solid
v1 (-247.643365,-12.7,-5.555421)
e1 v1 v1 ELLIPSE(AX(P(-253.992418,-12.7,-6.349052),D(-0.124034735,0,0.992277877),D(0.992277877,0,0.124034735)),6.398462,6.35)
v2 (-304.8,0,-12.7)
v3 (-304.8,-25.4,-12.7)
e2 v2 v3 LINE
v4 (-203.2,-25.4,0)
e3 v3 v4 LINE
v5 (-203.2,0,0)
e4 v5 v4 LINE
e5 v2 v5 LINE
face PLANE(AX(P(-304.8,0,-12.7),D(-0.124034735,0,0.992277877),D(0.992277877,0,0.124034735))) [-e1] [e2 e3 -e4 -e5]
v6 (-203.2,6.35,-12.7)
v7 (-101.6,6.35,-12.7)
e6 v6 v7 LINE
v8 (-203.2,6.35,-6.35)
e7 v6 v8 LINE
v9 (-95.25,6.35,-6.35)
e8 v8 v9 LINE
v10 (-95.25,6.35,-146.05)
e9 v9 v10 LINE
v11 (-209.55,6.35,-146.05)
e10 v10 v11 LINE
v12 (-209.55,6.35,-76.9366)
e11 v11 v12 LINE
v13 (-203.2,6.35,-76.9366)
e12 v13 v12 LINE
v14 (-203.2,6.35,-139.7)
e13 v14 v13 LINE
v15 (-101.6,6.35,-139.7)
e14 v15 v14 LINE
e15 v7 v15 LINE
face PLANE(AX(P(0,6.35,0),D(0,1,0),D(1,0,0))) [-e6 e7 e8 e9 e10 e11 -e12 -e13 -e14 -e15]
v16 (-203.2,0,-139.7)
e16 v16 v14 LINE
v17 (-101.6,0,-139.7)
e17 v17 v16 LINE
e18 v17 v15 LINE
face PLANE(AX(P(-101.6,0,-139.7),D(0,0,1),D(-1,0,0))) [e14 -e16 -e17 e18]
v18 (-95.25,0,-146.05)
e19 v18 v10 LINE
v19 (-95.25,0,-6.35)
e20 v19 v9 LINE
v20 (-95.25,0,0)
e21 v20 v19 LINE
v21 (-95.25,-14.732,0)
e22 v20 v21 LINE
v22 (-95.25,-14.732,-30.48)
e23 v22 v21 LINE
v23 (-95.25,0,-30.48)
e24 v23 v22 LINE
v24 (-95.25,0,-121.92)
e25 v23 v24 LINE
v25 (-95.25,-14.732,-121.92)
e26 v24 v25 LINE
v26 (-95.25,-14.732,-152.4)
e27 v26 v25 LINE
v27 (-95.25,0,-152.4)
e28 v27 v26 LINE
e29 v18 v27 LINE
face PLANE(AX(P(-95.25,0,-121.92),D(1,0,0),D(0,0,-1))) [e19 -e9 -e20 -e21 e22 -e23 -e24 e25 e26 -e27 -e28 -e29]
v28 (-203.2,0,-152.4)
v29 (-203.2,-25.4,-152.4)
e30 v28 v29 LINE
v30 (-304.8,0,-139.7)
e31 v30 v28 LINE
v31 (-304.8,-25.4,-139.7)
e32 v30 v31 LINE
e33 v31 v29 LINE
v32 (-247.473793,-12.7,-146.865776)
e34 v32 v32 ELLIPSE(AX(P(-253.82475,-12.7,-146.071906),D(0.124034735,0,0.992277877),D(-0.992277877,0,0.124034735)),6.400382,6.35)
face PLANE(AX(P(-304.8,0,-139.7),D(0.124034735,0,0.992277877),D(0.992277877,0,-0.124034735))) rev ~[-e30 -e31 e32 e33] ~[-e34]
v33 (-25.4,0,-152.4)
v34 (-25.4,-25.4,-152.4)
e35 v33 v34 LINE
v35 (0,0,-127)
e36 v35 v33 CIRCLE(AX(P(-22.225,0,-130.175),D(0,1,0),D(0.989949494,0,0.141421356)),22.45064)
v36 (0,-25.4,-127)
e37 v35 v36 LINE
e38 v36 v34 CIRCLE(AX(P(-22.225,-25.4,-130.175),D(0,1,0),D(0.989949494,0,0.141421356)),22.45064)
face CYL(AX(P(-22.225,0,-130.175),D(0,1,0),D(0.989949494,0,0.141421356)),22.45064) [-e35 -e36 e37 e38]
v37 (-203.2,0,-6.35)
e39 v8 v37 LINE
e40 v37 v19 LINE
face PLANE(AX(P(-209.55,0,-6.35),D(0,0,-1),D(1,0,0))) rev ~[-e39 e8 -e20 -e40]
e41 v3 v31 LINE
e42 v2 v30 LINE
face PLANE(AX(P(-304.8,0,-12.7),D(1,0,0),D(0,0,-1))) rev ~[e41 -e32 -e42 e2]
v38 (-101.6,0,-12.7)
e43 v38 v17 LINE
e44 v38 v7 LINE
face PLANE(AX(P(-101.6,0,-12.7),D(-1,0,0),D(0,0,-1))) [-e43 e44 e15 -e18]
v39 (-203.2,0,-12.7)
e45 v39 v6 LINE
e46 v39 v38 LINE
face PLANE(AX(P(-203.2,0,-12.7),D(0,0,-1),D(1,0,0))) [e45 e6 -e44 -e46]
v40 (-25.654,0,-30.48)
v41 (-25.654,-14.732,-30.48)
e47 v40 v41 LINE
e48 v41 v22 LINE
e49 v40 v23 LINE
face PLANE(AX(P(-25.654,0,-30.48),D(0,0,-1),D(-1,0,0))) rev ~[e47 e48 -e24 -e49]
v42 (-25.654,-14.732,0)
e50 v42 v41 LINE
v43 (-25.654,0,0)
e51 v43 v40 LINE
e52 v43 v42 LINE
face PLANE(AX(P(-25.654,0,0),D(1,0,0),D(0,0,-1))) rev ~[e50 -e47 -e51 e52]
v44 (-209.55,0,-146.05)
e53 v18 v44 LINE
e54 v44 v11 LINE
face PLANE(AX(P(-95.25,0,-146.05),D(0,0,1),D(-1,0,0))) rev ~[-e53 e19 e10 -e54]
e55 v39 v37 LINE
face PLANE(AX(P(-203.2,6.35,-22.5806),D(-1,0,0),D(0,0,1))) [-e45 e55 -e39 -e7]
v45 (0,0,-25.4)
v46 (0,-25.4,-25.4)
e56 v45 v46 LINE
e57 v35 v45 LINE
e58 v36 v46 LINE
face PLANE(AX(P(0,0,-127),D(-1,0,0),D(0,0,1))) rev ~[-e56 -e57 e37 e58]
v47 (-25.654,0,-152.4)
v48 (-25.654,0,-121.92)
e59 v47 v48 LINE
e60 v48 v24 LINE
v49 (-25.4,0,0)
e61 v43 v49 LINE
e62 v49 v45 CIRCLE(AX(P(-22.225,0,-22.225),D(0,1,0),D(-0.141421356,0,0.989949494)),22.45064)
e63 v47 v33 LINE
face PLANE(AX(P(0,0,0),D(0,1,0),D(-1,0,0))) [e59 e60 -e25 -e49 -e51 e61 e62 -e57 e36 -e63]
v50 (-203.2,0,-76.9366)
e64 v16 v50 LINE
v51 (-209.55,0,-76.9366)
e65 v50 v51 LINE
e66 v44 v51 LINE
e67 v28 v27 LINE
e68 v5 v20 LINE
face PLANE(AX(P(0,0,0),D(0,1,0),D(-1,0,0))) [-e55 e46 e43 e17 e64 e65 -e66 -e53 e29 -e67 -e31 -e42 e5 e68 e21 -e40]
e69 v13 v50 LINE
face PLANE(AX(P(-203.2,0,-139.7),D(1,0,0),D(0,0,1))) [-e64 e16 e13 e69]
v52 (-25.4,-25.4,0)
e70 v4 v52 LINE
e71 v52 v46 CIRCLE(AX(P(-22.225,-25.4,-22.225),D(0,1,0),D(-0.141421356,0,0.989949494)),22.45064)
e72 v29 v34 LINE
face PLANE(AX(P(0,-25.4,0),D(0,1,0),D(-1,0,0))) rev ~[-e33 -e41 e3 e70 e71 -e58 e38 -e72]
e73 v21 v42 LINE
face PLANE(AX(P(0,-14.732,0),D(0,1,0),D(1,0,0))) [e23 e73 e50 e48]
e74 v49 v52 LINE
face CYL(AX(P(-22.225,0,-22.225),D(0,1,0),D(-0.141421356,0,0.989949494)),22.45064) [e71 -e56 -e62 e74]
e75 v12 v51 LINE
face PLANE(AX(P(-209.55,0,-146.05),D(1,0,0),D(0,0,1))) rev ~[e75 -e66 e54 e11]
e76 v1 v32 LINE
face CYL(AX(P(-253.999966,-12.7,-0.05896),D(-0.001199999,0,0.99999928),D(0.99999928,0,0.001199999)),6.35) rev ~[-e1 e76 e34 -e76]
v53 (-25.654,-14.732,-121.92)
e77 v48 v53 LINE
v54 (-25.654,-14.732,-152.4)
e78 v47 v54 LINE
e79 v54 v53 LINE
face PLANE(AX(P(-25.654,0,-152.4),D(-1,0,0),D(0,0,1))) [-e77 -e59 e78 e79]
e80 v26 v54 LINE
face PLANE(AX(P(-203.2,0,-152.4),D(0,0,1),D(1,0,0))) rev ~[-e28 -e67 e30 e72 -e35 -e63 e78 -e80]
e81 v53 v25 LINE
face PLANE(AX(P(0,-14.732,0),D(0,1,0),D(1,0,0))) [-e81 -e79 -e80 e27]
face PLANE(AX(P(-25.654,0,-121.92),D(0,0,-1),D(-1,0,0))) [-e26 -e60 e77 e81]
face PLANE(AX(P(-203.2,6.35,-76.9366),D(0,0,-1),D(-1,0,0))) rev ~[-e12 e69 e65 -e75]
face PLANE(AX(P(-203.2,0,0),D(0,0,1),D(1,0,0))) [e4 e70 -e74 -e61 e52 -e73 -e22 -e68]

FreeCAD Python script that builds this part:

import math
import FreeCAD as App
import Part
import Sketcher
from FreeCAD import Vector
Q = App.Units.Quantity

doc = App.newDocument("Part")
body = doc.addObject("PartDesign::Body", "Body")

sketch1 = body.newObject("Sketcher::SketchObject", "Sketch")
sketch1.AttachmentSupport = (doc.getObject("XZ_Plane"), [""])
sketch1.MapMode = "FlatFace"
sketch1.addGeometry(Part.LineSegment(Vector(-203, -152, 0), Vector(-305, -140, 0)), False)
sketch1.addGeometry(Part.LineSegment(Vector(-305, -140, 0), Vector(-305, -13, 0)), False)
sketch1.addGeometry(Part.LineSegment(Vector(-305, -13, 0), Vector(-203, 0, 0)), False)
sketch1.addGeometry(Part.LineSegment(Vector(-203, 0, 0), Vector(-25, 0, 0)), False)
sketch1.addGeometry(Part.ArcOfCircle(Part.Circle(Vector(-22, -22, 0), Vector(0, 0, 1), 22), math.radians(-8), math.radians(98)), False)
sketch1.addGeometry(Part.LineSegment(Vector(0, -25, 0), Vector(0, -127, 0)), False)
sketch1.addGeometry(Part.ArcOfCircle(Part.Circle(Vector(-22, -130, 0), Vector(0, 0, 1), 22), math.radians(-98), math.radians(8)), False)
sketch1.addGeometry(Part.LineSegment(Vector(-25, -152, 0), Vector(-203, -152, 0)), False)
sketch1.addConstraint(Sketcher.Constraint("Coincident", 0, 2, 1, 1))
sketch1.addConstraint(Sketcher.Constraint("Coincident", 1, 2, 2, 1))
sketch1.addConstraint(Sketcher.Constraint("Coincident", 2, 2, 3, 1))
sketch1.addConstraint(Sketcher.Constraint("Coincident", 3, 2, 4, 2))
sketch1.addConstraint(Sketcher.Constraint("Coincident", 4, 1, 5, 1))
sketch1.addConstraint(Sketcher.Constraint("Coincident", 5, 2, 6, 2))
sketch1.addConstraint(Sketcher.Constraint("Coincident", 6, 1, 7, 1))
sketch1.addConstraint(Sketcher.Constraint("Coincident", 7, 2, 0, 1))
sketch1.addConstraint(Sketcher.Constraint("Vertical", 1))
sketch1.addConstraint(Sketcher.Constraint("Horizontal", 3))
sketch1.addConstraint(Sketcher.Constraint("Vertical", 5))
sketch1.addConstraint(Sketcher.Constraint("Horizontal", 7))
sketch1.addConstraint(Sketcher.Constraint("Equal", 4, 6))
sketch1.addConstraint(Sketcher.Constraint("PointOnObject", 2, 2, -1))
sketch1.addConstraint(Sketcher.Constraint("PointOnObject", 4, 1, -2))
sketch1.addConstraint(Sketcher.Constraint("Vertical", 4, 3, 6, 3))
sketch1.addConstraint(Sketcher.Constraint("Vertical", 3, 2, 6, 1))
sketch1.addConstraint(Sketcher.Constraint("Vertical", 2, 2, 7, 2))
sketch1.addConstraint(Sketcher.Constraint("Equal", 0, 2))
sketch1.addConstraint(Sketcher.Constraint("DistanceY", 1, 1, 1, 2, Q("5 in")))
sketch1.addConstraint(Sketcher.Constraint("DistanceY", 5, 2, 5, 1, Q("4 in")))
sketch1.addConstraint(Sketcher.Constraint("DistanceY", 5, 2, -1, 1, Q("5 in")))
sketch1.addConstraint(Sketcher.Constraint("DistanceX", 1, 2, 2, 2, Q("4 in")))
sketch1.addConstraint(Sketcher.Constraint("DistanceX", 3, 1, 3, 2, Q("7 in")))
sketch1.addConstraint(Sketcher.Constraint("DistanceX", 0, 2, -1, 1, Q("12 in")))
sketch1.addConstraint(Sketcher.Constraint("Radius", 4, Q("22.4506 mm")))
pad1 = body.newObject("PartDesign::Pad", "Pad")
pad1.Profile = sketch1
pad1.Length = Q("1 in")

sketch2 = body.newObject("Sketcher::SketchObject", "Sketch001")
sketch2.AttachmentSupport = (doc.getObject("XZ_Plane"), [""])
sketch2.MapMode = "FlatFace"
sketch2.addGeometry(Part.LineSegment(Vector(-210, -146, 0), Vector(-210, -6, 0)), False)
sketch2.addGeometry(Part.LineSegment(Vector(-210, -6, 0), Vector(-95, -6, 0)), False)
sketch2.addGeometry(Part.LineSegment(Vector(-95, -6, 0), Vector(-95, -146, 0)), False)
sketch2.addGeometry(Part.LineSegment(Vector(-95, -146, 0), Vector(-210, -146, 0)), False)
sketch2.addGeometry(Part.LineSegment(Vector(-102, -13, 0), Vector(-203, -13, 0)), False)
sketch2.addGeometry(Part.LineSegment(Vector(-203, -13, 0), Vector(-203, -140, 0)), False)
sketch2.addGeometry(Part.LineSegment(Vector(-203, -140, 0), Vector(-102, -140, 0)), False)
sketch2.addGeometry(Part.LineSegment(Vector(-102, -140, 0), Vector(-102, -13, 0)), False)
sketch2.addConstraint(Sketcher.Constraint("Coincident", 0, 2, 1, 1))
sketch2.addConstraint(Sketcher.Constraint("Coincident", 1, 2, 2, 1))
sketch2.addConstraint(Sketcher.Constraint("Coincident", 2, 2, 3, 1))
sketch2.addConstraint(Sketcher.Constraint("Coincident", 3, 2, 0, 1))
sketch2.addConstraint(Sketcher.Constraint("Coincident", 4, 2, 5, 1))
sketch2.addConstraint(Sketcher.Constraint("Coincident", 5, 2, 6, 1))
sketch2.addConstraint(Sketcher.Constraint("Coincident", 6, 2, 7, 1))
sketch2.addConstraint(Sketcher.Constraint("Coincident", 7, 2, 4, 1))
sketch2.addConstraint(Sketcher.Constraint("Vertical", 0))
sketch2.addConstraint(Sketcher.Constraint("Horizontal", 1))
sketch2.addConstraint(Sketcher.Constraint("Vertical", 2))
sketch2.addConstraint(Sketcher.Constraint("Horizontal", 3))
sketch2.addConstraint(Sketcher.Constraint("Horizontal", 4))
sketch2.addConstraint(Sketcher.Constraint("Vertical", 5))
sketch2.addConstraint(Sketcher.Constraint("Horizontal", 6))
sketch2.addConstraint(Sketcher.Constraint("Vertical", 7))
sketch2.addConstraint(Sketcher.Constraint("DistanceX", 4, 2, 4, 1, Q("4 in")))
sketch2.addConstraint(Sketcher.Constraint("DistanceY", 5, 2, 5, 1, Q("5 in")))
sketch2.addConstraint(Sketcher.Constraint("DistanceX", 1, 1, 1, 2, Q("4.5 in")))
sketch2.addConstraint(Sketcher.Constraint("DistanceY", 0, 1, 0, 2, Q("5.5 in")))
sketch2.addConstraint(Sketcher.Constraint("DistanceX", 6, 2, -1, 1, Q("4 in")))
sketch2.addConstraint(Sketcher.Constraint("DistanceY", 4, 2, -1, 1, Q("0.5 in")))
sketch2.addConstraint(Sketcher.Constraint("DistanceY", 0, 2, -1, 1, Q("0.25 in")))
sketch2.addConstraint(Sketcher.Constraint("DistanceX", 0, 2, 4, 2, Q("0.25 in")))
pad2 = body.newObject("PartDesign::Pad", "Pad001")
pad2.Profile = sketch2
pad2.Length = Q("0.25 in")
pad2.Reversed = True

sketch3 = body.newObject("Sketcher::SketchObject", "Sketch002")
sketch3.Placement = App.Placement(Vector(-203.2, 0, 0), App.Rotation(Vector(0.99999928, 0, 0.001199999), Vector(0, 1, 0), Vector(-0.001199999, 0, 0.99999928), "ZXY"))
sketch3.addGeometry(Part.Circle(Vector(-51, -13, 0), Vector(0, 0, 1), 6), False)
sketch3.addConstraint(Sketcher.Constraint("Diameter", 0, Q("0.5 in")))
sketch3.addConstraint(Sketcher.Constraint("DistanceX", 0, 3, -1, 1, Q("2 in")))
sketch3.addConstraint(Sketcher.Constraint("DistanceY", 0, 3, -1, 1, Q("0.5 in")))
pocket1 = body.newObject("PartDesign::Pocket", "Pocket")
pocket1.Profile = sketch3
pocket1.Length = Q("6 in")

sketch4 = body.newObject("Sketcher::SketchObject", "Sketch003")
sketch4.AttachmentSupport = (doc.getObject("XZ_Plane"), [""])
sketch4.MapMode = "FlatFace"
sketch4.addGeometry(Part.LineSegment(Vector(-95, -30, 0), Vector(-95, 0, 0)), False)
sketch4.addGeometry(Part.LineSegment(Vector(-95, 0, 0), Vector(-26, 0, 0)), False)
sketch4.addGeometry(Part.LineSegment(Vector(-26, 0, 0), Vector(-26, -30, 0)), False)
sketch4.addGeometry(Part.LineSegment(Vector(-26, -30, 0), Vector(-95, -30, 0)), False)
sketch4.addGeometry(Part.LineSegment(Vector(-95, -152, 0), Vector(-95, -122, 0)), False)
sketch4.addGeometry(Part.LineSegment(Vector(-95, -122, 0), Vector(-26, -122, 0)), False)
sketch4.addGeometry(Part.LineSegment(Vector(-26, -122, 0), Vector(-26, -152, 0)), False)
sketch4.addGeometry(Part.LineSegment(Vector(-26, -152, 0), Vector(-95, -152, 0)), False)
sketch4.addConstraint(Sketcher.Constraint("Coincident", 0, 2, 1, 1))
sketch4.addConstraint(Sketcher.Constraint("Coincident", 1, 2, 2, 1))
sketch4.addConstraint(Sketcher.Constraint("Coincident", 2, 2, 3, 1))
sketch4.addConstraint(Sketcher.Constraint("Coincident", 3, 2, 0, 1))
sketch4.addConstraint(Sketcher.Constraint("Coincident", 4, 2, 5, 1))
sketch4.addConstraint(Sketcher.Constraint("Coincident", 5, 2, 6, 1))
sketch4.addConstraint(Sketcher.Constraint("Coincident", 6, 2, 7, 1))
sketch4.addConstraint(Sketcher.Constraint("Coincident", 7, 2, 4, 1))
sketch4.addConstraint(Sketcher.Constraint("Vertical", 0))
sketch4.addConstraint(Sketcher.Constraint("Horizontal", 1))
sketch4.addConstraint(Sketcher.Constraint("Vertical", 2))
sketch4.addConstraint(Sketcher.Constraint("Horizontal", 3))
sketch4.addConstraint(Sketcher.Constraint("Vertical", 4))
sketch4.addConstraint(Sketcher.Constraint("Horizontal", 5))
sketch4.addConstraint(Sketcher.Constraint("Vertical", 6))
sketch4.addConstraint(Sketcher.Constraint("Horizontal", 7))
sketch4.addConstraint(Sketcher.Constraint("PointOnObject", 0, 2, -1))
sketch4.addConstraint(Sketcher.Constraint("Vertical", 3, 2, 4, 2))
sketch4.addConstraint(Sketcher.Constraint("Vertical", 2, 2, 5, 2))
sketch4.addConstraint(Sketcher.Constraint("Equal", 2, 4))
sketch4.addConstraint(Sketcher.Constraint("DistanceY", 0, 1, 0, 2, Q("1.2 in")))
sketch4.addConstraint(Sketcher.Constraint("DistanceX", 1, 1, 1, 2, Q("2.74 in")))
sketch4.addConstraint(Sketcher.Constraint("DistanceY", 6, 2, -1, 1, Q("6 in")))
sketch4.addConstraint(Sketcher.Constraint("DistanceX", 0, 2, -1, 1, Q("3.75 in")))
pocket2 = body.newObject("PartDesign::Pocket", "Pocket001")
pocket2.Profile = sketch4
pocket2.Length = Q("0.58 in")
pocket2.Reversed = True

sketch5 = body.newObject("Sketcher::SketchObject", "Sketch004")
sketch5.AttachmentSupport = (doc.getObject("XZ_Plane"), [""])
sketch5.MapMode = "FlatFace"
sketch5.AttachmentOffset = App.Placement(Vector(0, 0, -0.25 * 25.4), App.Rotation())
sketch5.addGeometry(Part.LineSegment(Vector(-203, -6, 0), Vector(-203, -77, 0)), False)
sketch5.addGeometry(Part.LineSegment(Vector(-203, -77, 0), Vector(-210, -77, 0)), False)
sketch5.addGeometry(Part.LineSegment(Vector(-210, -77, 0), Vector(-210, -6, 0)), False)
sketch5.addGeometry(Part.LineSegment(Vector(-210, -6, 0), Vector(-203, -6, 0)), False)
sketch5.addConstraint(Sketcher.Constraint("Coincident", 0, 2, 1, 1))
sketch5.addConstraint(Sketcher.Constraint("Coincident", 1, 2, 2, 1))
sketch5.addConstraint(Sketcher.Constraint("Coincident", 2, 2, 3, 1))
sketch5.addConstraint(Sketcher.Constraint("Coincident", 3, 2, 0, 1))
sketch5.addConstraint(Sketcher.Constraint("Vertical", 0))
sketch5.addConstraint(Sketcher.Constraint("Horizontal", 1))
sketch5.addConstraint(Sketcher.Constraint("Vertical", 2))
sketch5.addConstraint(Sketcher.Constraint("Horizontal", 3))
sketch5.addConstraint(Sketcher.Constraint("DistanceX", 1, 2, 1, 1, Q("0.25 in")))
sketch5.addConstraint(Sketcher.Constraint("DistanceY", 2, 2, -1, 1, Q("0.25 in")))
sketch5.addConstraint(Sketcher.Constraint("DistanceX", 0, 2, -1, 1, Q("8 in")))
sketch5.addConstraint(Sketcher.Constraint("DistanceY", 0, 2, 0, 1, Q("2.779 in")))
pocket3 = body.newObject("PartDesign::Pocket", "Pocket002")
pocket3.Profile = sketch5
pocket3.Length = Q("0.25 in")
pocket3.Reversed = True

doc.recompute()
